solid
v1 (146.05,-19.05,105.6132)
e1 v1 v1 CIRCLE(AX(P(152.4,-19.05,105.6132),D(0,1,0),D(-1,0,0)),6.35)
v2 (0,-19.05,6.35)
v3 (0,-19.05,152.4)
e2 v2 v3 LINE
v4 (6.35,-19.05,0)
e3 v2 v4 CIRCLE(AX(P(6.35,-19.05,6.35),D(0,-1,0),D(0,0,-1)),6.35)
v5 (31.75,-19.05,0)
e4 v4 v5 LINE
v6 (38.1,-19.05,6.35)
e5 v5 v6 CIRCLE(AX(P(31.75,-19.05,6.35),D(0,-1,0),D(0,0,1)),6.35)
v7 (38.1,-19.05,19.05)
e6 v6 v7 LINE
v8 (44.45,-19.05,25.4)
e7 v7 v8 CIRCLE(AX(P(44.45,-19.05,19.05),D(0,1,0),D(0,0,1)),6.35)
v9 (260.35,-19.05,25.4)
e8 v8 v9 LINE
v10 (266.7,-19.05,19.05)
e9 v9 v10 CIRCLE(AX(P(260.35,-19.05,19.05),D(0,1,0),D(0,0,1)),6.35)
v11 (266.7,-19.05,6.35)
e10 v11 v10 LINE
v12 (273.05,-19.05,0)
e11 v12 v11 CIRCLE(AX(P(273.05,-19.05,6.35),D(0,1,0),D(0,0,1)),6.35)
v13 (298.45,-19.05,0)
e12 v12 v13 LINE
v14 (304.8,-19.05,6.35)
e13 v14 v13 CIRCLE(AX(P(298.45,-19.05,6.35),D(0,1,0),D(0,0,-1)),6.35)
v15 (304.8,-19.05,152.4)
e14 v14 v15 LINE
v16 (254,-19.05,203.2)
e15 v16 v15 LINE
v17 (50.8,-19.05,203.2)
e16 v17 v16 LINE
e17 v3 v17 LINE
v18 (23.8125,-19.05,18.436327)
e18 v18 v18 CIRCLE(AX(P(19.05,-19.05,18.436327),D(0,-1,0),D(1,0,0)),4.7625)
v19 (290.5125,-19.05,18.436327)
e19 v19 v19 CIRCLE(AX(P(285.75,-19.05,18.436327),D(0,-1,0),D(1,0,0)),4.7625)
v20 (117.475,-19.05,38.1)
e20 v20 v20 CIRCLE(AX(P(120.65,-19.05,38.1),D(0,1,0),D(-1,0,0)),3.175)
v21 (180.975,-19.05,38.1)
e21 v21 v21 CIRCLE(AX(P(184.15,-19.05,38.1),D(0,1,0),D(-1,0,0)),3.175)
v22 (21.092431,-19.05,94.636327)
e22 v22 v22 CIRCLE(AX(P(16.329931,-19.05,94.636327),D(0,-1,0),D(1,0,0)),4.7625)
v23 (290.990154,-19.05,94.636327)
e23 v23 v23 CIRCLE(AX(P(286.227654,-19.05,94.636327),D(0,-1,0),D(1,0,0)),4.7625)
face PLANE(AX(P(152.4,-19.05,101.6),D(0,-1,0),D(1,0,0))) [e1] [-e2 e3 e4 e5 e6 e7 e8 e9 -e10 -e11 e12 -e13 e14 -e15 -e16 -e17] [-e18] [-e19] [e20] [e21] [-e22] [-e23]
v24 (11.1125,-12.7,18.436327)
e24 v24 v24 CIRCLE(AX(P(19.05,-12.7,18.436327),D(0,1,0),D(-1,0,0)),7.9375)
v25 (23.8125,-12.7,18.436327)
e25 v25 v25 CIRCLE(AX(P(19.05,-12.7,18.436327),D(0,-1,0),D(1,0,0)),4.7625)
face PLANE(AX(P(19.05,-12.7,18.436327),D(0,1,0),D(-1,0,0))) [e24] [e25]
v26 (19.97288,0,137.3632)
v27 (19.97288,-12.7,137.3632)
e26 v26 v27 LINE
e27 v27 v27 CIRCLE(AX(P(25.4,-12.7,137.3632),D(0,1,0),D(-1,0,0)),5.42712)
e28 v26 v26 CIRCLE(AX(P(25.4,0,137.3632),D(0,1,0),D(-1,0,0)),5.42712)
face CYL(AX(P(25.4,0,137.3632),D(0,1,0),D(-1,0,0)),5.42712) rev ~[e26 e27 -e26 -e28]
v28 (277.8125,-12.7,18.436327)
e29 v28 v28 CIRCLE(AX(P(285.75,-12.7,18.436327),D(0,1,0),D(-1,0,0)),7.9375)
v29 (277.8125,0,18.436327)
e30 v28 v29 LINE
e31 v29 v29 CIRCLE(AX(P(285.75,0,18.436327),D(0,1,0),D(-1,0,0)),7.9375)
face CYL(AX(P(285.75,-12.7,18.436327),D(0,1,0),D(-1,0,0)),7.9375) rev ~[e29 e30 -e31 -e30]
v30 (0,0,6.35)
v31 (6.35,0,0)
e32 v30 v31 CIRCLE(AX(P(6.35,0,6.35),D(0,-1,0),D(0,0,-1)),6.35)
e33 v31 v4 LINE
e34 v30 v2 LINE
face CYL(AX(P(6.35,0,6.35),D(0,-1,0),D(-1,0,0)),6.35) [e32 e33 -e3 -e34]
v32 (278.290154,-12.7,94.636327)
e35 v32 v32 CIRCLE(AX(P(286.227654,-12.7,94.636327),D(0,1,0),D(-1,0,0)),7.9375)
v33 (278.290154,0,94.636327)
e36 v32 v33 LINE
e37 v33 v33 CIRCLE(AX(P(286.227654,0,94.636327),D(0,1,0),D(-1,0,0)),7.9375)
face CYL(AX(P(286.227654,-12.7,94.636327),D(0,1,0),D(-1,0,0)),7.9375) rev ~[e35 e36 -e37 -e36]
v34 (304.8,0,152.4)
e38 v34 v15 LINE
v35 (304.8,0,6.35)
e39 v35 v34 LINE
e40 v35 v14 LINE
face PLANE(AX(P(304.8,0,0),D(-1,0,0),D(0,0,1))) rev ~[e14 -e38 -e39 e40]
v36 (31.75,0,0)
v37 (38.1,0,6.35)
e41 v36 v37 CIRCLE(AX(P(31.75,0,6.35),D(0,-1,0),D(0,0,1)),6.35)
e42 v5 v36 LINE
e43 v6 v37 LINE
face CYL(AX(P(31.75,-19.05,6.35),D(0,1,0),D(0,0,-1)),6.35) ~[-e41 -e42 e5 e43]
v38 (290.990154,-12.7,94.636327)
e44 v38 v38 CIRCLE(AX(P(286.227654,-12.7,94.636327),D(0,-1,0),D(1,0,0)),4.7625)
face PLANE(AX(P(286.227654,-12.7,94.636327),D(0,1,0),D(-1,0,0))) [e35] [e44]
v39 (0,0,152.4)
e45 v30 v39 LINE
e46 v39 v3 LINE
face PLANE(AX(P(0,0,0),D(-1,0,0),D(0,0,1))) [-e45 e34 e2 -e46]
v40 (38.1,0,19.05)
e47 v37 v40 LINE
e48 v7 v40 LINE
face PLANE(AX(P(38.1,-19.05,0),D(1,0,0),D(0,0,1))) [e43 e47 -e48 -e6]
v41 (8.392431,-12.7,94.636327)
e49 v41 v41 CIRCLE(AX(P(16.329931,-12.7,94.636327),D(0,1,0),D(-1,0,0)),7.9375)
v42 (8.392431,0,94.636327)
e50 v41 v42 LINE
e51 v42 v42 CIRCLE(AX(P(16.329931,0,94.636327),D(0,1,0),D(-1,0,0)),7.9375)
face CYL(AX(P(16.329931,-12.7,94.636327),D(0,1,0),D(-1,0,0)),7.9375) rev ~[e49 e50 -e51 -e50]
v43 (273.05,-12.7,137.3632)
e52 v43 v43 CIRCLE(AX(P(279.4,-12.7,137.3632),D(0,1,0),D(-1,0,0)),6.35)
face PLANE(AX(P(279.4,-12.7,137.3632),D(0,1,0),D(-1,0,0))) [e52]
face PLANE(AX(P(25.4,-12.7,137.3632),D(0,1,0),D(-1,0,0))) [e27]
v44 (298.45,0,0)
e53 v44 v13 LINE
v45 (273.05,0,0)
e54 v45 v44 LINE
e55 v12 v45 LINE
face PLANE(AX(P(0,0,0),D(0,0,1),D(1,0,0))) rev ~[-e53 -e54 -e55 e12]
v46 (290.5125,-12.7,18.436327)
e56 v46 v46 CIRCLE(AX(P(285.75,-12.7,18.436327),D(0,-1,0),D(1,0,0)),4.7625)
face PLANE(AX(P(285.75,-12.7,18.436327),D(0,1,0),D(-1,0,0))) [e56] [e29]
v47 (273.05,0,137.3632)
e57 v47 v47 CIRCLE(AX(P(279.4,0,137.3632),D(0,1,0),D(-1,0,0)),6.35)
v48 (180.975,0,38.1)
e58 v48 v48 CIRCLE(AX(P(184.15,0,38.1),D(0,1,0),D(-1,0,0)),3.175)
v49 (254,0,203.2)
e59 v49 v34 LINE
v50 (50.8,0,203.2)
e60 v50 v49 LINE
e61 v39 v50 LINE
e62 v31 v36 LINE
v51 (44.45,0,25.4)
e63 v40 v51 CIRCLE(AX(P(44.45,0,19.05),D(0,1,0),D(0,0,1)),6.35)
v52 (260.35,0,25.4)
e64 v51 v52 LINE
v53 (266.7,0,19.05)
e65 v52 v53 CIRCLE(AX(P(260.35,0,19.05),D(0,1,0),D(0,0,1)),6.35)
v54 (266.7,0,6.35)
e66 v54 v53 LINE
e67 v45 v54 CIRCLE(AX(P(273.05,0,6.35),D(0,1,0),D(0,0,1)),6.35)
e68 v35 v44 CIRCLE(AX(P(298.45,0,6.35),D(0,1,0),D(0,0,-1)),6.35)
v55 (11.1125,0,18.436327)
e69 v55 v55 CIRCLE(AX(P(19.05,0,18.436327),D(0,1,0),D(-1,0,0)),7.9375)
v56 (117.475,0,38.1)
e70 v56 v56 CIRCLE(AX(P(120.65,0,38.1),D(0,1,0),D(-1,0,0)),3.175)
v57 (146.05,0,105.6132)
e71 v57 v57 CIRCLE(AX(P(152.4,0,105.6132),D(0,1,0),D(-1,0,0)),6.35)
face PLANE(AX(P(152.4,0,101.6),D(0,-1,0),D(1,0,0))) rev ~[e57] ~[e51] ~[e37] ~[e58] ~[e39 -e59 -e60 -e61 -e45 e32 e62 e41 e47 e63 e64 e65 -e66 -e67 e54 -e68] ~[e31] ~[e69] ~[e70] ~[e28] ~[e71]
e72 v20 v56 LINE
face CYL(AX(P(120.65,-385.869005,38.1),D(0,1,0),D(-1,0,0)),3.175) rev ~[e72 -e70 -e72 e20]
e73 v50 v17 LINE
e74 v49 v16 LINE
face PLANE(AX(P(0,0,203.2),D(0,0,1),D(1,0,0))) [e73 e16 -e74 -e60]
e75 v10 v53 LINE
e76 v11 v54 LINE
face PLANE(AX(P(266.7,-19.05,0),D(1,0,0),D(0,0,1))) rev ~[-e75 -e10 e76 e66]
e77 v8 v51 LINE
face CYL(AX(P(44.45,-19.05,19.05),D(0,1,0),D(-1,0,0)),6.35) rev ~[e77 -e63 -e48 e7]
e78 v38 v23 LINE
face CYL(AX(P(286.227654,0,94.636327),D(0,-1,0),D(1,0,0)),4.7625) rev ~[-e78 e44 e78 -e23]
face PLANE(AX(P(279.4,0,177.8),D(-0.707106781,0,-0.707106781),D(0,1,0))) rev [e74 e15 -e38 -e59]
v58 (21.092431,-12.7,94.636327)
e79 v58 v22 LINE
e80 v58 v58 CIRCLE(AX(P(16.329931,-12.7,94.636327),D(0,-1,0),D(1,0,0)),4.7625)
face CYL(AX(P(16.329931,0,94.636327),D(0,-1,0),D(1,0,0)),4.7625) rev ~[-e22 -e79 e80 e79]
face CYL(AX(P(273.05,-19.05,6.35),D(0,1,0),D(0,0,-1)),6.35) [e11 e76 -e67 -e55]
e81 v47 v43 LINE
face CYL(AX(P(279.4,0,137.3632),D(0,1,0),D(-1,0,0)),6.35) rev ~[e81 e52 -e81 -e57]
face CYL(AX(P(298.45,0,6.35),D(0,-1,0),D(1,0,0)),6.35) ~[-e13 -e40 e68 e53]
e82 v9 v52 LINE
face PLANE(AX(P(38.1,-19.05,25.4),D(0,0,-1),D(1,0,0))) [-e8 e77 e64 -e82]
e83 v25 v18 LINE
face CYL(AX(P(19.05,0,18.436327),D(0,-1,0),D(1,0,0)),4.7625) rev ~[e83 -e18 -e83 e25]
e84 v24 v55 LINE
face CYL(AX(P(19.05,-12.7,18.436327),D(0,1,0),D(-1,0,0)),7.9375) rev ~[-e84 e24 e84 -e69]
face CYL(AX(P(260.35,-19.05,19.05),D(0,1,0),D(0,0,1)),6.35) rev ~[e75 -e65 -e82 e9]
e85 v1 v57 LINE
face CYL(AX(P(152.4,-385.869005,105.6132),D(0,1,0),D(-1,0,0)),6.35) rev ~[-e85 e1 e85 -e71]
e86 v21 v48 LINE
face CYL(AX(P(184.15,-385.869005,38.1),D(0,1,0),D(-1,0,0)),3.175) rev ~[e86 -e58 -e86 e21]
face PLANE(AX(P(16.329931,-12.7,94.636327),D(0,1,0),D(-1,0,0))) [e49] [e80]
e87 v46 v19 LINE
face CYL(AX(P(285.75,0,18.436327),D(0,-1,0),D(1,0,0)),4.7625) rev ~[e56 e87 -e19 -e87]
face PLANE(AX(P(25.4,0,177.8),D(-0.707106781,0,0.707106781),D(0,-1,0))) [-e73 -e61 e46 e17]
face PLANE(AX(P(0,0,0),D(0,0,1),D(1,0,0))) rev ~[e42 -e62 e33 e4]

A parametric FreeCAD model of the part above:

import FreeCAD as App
import Part
import Sketcher
Q = App.Units.Quantity


def edges_at(feature, points):
    """Names of the edges that pass closest to the given points."""
    edges = feature.Shape.Edges
    near = lambda p: min(range(len(edges)), key=lambda i: edges[i].distToShape(Part.Vertex(*p))[0])
    return sorted({f"Edge{near(p) + 1}" for p in points})

doc = App.newDocument("Part")
body = doc.addObject("PartDesign::Body", "Body")

# Sketch on XZ plane
sketch1 = doc.addObject("Sketcher::SketchObject", "Sketch")
body.addObject(sketch1)
sketch1.AttachmentSupport = (doc.XZ_Plane, [""])
sketch1.MapMode = "FlatFace"
sketch1.addGeometry([
    Part.LineSegment(App.Vector(0, 203, 0), App.Vector(0, 0, 0)),
    Part.LineSegment(App.Vector(0, 0, 0), App.Vector(305, 0, 0)),
    Part.LineSegment(App.Vector(305, 0, 0), App.Vector(305, 203, 0)),
    Part.LineSegment(App.Vector(305, 203, 0), App.Vector(0, 203, 0)),
], False)
sketch1.addConstraint([
    Sketcher.Constraint("Coincident", 0, 2, 1, 1),
    Sketcher.Constraint("Coincident", 1, 2, 2, 1),
    Sketcher.Constraint("Coincident", 2, 2, 3, 1),
    Sketcher.Constraint("Coincident", 3, 2, 0, 1),
    Sketcher.Constraint("Vertical", 0),
    Sketcher.Constraint("Horizontal", 1),
    Sketcher.Constraint("Vertical", 2),
    Sketcher.Constraint("Horizontal", 3),
    Sketcher.Constraint("Coincident", 0, 2, -1, 1),
    Sketcher.Constraint("DistanceX", 1, 1, 1, 2, Q("12 in")),
    Sketcher.Constraint("DistanceY", 0, 2, 0, 1, Q("8 in")),
])
pad1 = doc.addObject("PartDesign::Pad", "Pad")
body.addObject(pad1)
pad1.Profile = sketch1
pad1.Length = Q("0.75 in")

# Sketch on XZ plane
sketch2 = doc.addObject("Sketcher::SketchObject", "Sketch001")
body.addObject(sketch2)
sketch2.AttachmentSupport = (doc.XZ_Plane, [""])
sketch2.MapMode = "FlatFace"
sketch2.AttachmentOffset = App.Placement(App.Vector(0, 0, 0.75 * 25.4), App.Rotation())
sketch2.addGeometry([
    Part.LineSegment(App.Vector(38, 25, 0), App.Vector(38, 0, 0)),
    Part.LineSegment(App.Vector(38, 0, 0), App.Vector(267, 0, 0)),
    Part.LineSegment(App.Vector(267, 0, 0), App.Vector(267, 25, 0)),
    Part.LineSegment(App.Vector(267, 25, 0), App.Vector(38, 25, 0)),
], False)
sketch2.addConstraint([
    Sketcher.Constraint("Coincident", 0, 2, 1, 1),
    Sketcher.Constraint("Coincident", 1, 2, 2, 1),
    Sketcher.Constraint("Coincident", 2, 2, 3, 1),
    Sketcher.Constraint("Coincident", 3, 2, 0, 1),
    Sketcher.Constraint("Vertical", 0),
    Sketcher.Constraint("Horizontal", 1),
    Sketcher.Constraint("Vertical", 2),
    Sketcher.Constraint("Horizontal", 3),
    Sketcher.Constraint("PointOnObject", 0, 2, -1),
    Sketcher.Constraint("DistanceX", 1, 1, 1, 2, Q("9 in")),
    Sketcher.Constraint("DistanceY", 0, 2, 0, 1, Q("1 in")),
    Sketcher.Constraint("DistanceX", -1, 1, 0, 2, Q("1.5 in")),
])
pocket1 = doc.addObject("PartDesign::Pocket", "Pocket")
body.addObject(pocket1)
pocket1.Profile = sketch2
pocket1.Type = "ThroughAll"

# Sketch on XZ plane
sketch3 = doc.addObject("Sketcher::SketchObject", "Sketch002")
body.addObject(sketch3)
sketch3.AttachmentSupport = (doc.XZ_Plane, [""])
sketch3.MapMode = "FlatFace"
sketch3.AttachmentOffset = App.Placement(App.Vector(0, 0, 0.75 * 25.4), App.Rotation())
sketch3.addGeometry([
    Part.Circle(App.Vector(120.7, 38.1, 0), App.Vector(0, 0, 1), 3.2),
    Part.Circle(App.Vector(184.2, 38.1, 0), App.Vector(0, 0, 1), 3.2),
], False)
sketch3.addConstraint([
    Sketcher.Constraint("Equal", 0, 1),
    Sketcher.Constraint("Horizontal", 0, 3, 1, 3),
    Sketcher.Constraint("Diameter", 0, Q("0.25 in")),
    Sketcher.Constraint("DistanceY", -1, 1, 0, 3, Q("1.5 in")),
    Sketcher.Constraint("DistanceX", 0, 3, 1, 3, Q("2.5 in")),
    Sketcher.Constraint("DistanceX", -1, 1, 0, 3, Q("4.75 in")),
])
doc.recompute()
hole = doc.addObject("PartDesign::Hole", "Hole")
body.addObject(hole)
hole.Profile = sketch3
hole.ThreadType = "None"
hole.Diameter = Q("0.25 in")
hole.DepthType = "ThroughAll"
doc.recompute()

fillet = doc.addObject("PartDesign::Fillet", "Fillet")
body.addObject(fillet)
fillet.Base = (hole, edges_at(hole, [
    (38.1, -9.525, 0),
    (38.1, -9.525, 25.4),
    (0, -9.525, 0),
    (266.7, -9.525, 25.4),
    (266.7, -9.525, 0),
    (304.8, -9.525, 0),
]))
fillet.Radius = Q("0.25 in")

# Sketch on XZ plane
sketch4 = doc.addObject("Sketcher::SketchObject", "Sketch003")
body.addObject(sketch4)
sketch4.AttachmentSupport = (doc.XZ_Plane, [""])
sketch4.MapMode = "FlatFace"
sketch4.AttachmentOffset = App.Placement(App.Vector(0, 0, 0.75 * 25.4), App.Rotation())
sketch4.addGeometry(Part.Circle(App.Vector(152, 106, 0), App.Vector(0, 0, 1), 6), False)
sketch4.addConstraint([
    Sketcher.Constraint("Diameter", 0, Q("0.5 in")),
    Sketcher.Constraint("DistanceX", -1, 1, 0, 3, Q("6 in")),
    Sketcher.Constraint("DistanceY", -1, 1, 0, 3, Q("4.158 in")),
])
doc.recompute()
hole2 = doc.addObject("PartDesign::Hole", "Hole001")
body.addObject(hole2)
hole2.Profile = sketch4
hole2.ThreadType = "None"
hole2.Diameter = Q("0.5 in")
hole2.DepthType = "ThroughAll"

# Sketch on XZ plane
sketch5 = doc.addObject("Sketcher::SketchObject", "Sketch004")
body.addObject(sketch5)
sketch5.AttachmentSupport = (doc.XZ_Plane, [""])
sketch5.MapMode = "FlatFace"
sketch5.addGeometry([
    Part.Circle(App.Vector(25, 137, 0), App.Vector(0, 0, 1), 5),
    Part.Circle(App.Vector(279, 137, 0), App.Vector(0, 0, 1), 6),
], False)
sketch5.addConstraint([
    Sketcher.Constraint("Horizontal", 0, 3, 1, 3),
    Sketcher.Constraint("Diameter", 1, Q("0.5 in")),
    Sketcher.Constraint("DistanceX", -1, 1, 0, 3, Q("1 in")),
    Sketcher.Constraint("DistanceX", -1, 1, 1, 3, Q("11 in")),
    Sketcher.Constraint("Diameter", 0, Q("10.854241 mm")),
    Sketcher.Constraint("DistanceY", -1, 1, 0, 3, Q("5.408 in")),
])
pocket2 = doc.addObject("PartDesign::Pocket", "Pocket001")
body.addObject(pocket2)
pocket2.Profile = sketch5
pocket2.Length = Q("0.5 in")
pocket2.Reversed = True

# Sketch on XZ plane
sketch6 = doc.addObject("Sketcher::SketchObject", "Sketch005")
body.addObject(sketch6)
sketch6.AttachmentSupport = (doc.XZ_Plane, [""])
sketch6.MapMode = "FlatFace"
sketch6.addGeometry([
    Part.Circle(App.Vector(286.2, 94.6, 0), App.Vector(0, 0, 1), 4.8),
    Part.Circle(App.Vector(285.8, 18.4, 0), App.Vector(0, 0, 1), 4.8),
    Part.Circle(App.Vector(19.1, 18.4, 0), App.Vector(0, 0, 1), 4.8),
    Part.Circle(App.Vector(16.3, 94.6, 0), App.Vector(0, 0, 1), 4.8),
], False)
sketch6.addConstraint([
    Sketcher.Constraint("Equal", 0, 1),
    Sketcher.Constraint("Equal", 1, 2),
    Sketcher.Constraint("Equal", 2, 3),
    Sketcher.Constraint("Horizontal", 1, 3, 2, 3),
    Sketcher.Constraint("Horizontal", 0, 3, 3, 3),
    Sketcher.Constraint("Diameter", 0, Q("0.375 in")),
    Sketcher.Constraint("DistanceY", 1, 3, 0, 3, Q("3 in")),
    Sketcher.Constraint("DistanceX", 2, 3, 1, 3, Q("10.5 in")),
    Sketcher.Constraint("DistanceX", -1, 1, 1, 3, Q("11.25 in")),
    Sketcher.Constraint("DistanceX", -1, 1, 3, 3, Q("16.329931 mm")),
    Sketcher.Constraint("DistanceX", -1, 1, 0, 3, Q("286.227654 mm")),
    Sketcher.Constraint("DistanceY", -1, 1, 0, 3, Q("94.636327 mm")),
])
doc.recompute()
hole3 = doc.addObject("PartDesign::Hole", "Hole002")
body.addObject(hole3)
hole3.Profile = sketch6
hole3.ThreadType = "None"
hole3.Diameter = Q("0.375 in")
hole3.DepthType = "ThroughAll"
hole3.HoleCutType = "Counterbore"
hole3.HoleCutDiameter = Q("0.625 in")
hole3.HoleCutDepth = Q("0.5 in")
hole3.Reversed = True
doc.recompute()

chamfer = doc.addObject("PartDesign::Chamfer", "Chamfer")
body.addObject(chamfer)
chamfer.Base = (hole3, edges_at(hole3, [(304.8, -9.525, 203.2), (0, -9.525, 203.2)]))
chamfer.Size = Q("2 in")

doc.recompute()
